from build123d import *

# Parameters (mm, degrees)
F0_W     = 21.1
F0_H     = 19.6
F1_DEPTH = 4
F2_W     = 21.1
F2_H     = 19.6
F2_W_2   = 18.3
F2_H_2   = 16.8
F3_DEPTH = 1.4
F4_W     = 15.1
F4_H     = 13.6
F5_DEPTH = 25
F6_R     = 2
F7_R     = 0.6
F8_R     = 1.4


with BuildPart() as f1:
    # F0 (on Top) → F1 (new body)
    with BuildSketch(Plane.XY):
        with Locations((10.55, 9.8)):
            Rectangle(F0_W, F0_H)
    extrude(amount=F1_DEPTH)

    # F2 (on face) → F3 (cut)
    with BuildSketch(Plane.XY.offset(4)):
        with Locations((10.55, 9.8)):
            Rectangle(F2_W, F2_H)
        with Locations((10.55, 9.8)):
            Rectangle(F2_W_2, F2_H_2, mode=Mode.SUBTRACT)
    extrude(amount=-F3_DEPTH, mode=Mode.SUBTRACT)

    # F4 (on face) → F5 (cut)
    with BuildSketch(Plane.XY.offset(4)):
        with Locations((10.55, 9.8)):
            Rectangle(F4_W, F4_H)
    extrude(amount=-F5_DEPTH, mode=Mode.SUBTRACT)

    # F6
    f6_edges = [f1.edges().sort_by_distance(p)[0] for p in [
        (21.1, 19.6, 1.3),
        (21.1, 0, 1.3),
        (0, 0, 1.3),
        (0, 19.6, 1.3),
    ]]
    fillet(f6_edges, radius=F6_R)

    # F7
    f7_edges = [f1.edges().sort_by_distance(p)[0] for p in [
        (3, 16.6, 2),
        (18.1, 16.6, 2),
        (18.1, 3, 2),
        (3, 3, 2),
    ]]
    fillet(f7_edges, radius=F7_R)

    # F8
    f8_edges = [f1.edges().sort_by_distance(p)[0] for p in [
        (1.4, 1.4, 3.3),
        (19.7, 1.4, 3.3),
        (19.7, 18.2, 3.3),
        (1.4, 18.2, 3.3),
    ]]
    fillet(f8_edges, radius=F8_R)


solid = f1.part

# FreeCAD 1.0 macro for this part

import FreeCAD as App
import Part
import Sketcher

V = App.Vector


def edges_at(feature, points):
    """Names of the edges that pass closest to the given points."""
    edges = feature.Shape.Edges
    near = lambda p: min(range(len(edges)), key=lambda i: edges[i].distToShape(Part.Vertex(*p))[0])
    return sorted({f"Edge{near(p) + 1}" for p in points})


def add_polygon(sketch, points):
    """Adds a closed chain of lines whose ends are joined by coincident constraints."""
    first, n = sketch.GeometryCount, len(points)
    for a, b in zip(points, points[1:] + points[:1]):
        sketch.addGeometry(Part.LineSegment(App.Vector(*a, 0), App.Vector(*b, 0)), False)
    for i in range(n):
        sketch.addConstraint(Sketcher.Constraint("Coincident", first + i, 2, first + (i + 1) % n, 1))

doc = App.newDocument("Part")
body = doc.addObject("PartDesign::Body", "Body")

# Sketch on XY plane
sketch1 = body.newObject("Sketcher::SketchObject", "Sketch")
sketch1.AttachmentSupport = (doc.getObject("XY_Plane"), [""])
sketch1.MapMode = "FlatFace"
add_polygon(sketch1, [(0, 20), (0, 0), (21, 0), (21, 20)])  # lines 0-3
sketch1.addConstraint([
    Sketcher.Constraint("Vertical", 0),
    Sketcher.Constraint("Horizontal", 1),
    Sketcher.Constraint("Vertical", 2),
    Sketcher.Constraint("Horizontal", 3),
    Sketcher.Constraint("Coincident", 0, 2, -1, 1),
    Sketcher.Constraint("DistanceX", 1, 1, 1, 2, 21.1),
    Sketcher.Constraint("DistanceY", 0, 2, 0, 1, 19.6),
])
pad1 = body.newObject("PartDesign::Pad", "Pad")
pad1.Profile = sketch1
pad1.Length = 4

# Sketch on XY plane
sketch2 = body.newObject("Sketcher::SketchObject", "Sketch001")
sketch2.AttachmentSupport = (doc.getObject("XY_Plane"), [""])
sketch2.MapMode = "FlatFace"
sketch2.AttachmentOffset = App.Placement(V(0, 0, 4), App.Rotation())
add_polygon(sketch2, [(0, 20), (0, 0), (21, 0), (21, 20)])  # lines 0-3
add_polygon(sketch2, [(20, 1), (1, 1), (1, 18), (20, 18)])  # lines 4-7
sketch2.addConstraint([
    Sketcher.Constraint("Vertical", 0),
    Sketcher.Constraint("Horizontal", 1),
    Sketcher.Constraint("Vertical", 2),
    Sketcher.Constraint("Horizontal", 3),
    Sketcher.Constraint("Horizontal", 4),
    Sketcher.Constraint("Vertical", 5),
    Sketcher.Constraint("Horizontal", 6),
    Sketcher.Constraint("Vertical", 7),
    Sketcher.Constraint("Coincident", 0, 2, -1, 1),
    Sketcher.Constraint("DistanceX", 1, 1, 1, 2, 21.1),
    Sketcher.Constraint("DistanceX", 4, 2, 4, 1, 18.3),
    Sketcher.Constraint("DistanceY", 0, 2, 0, 1, 19.6),
    Sketcher.Constraint("DistanceY", 5, 1, 5, 2, 16.8),
    Sketcher.Constraint("DistanceX", -1, 1, 4, 2, 1.4),
    Sketcher.Constraint("DistanceY", -1, 1, 4, 2, 1.4),
])
pocket1 = body.newObject("PartDesign::Pocket", "Pocket")
pocket1.Profile = sketch2
pocket1.Length = 1.4

# Sketch on XY plane
sketch3 = body.newObject("Sketcher::SketchObject", "Sketch002")
sketch3.AttachmentSupport = (doc.getObject("XY_Plane"), [""])
sketch3.MapMode = "FlatFace"
sketch3.AttachmentOffset = App.Placement(V(0, 0, 4), App.Rotation())
add_polygon(sketch3, [(3, 17), (3, 3), (18, 3), (18, 17)])  # lines 0-3
sketch3.addConstraint([
    Sketcher.Constraint("Vertical", 0),
    Sketcher.Constraint("Horizontal", 1),
    Sketcher.Constraint("Vertical", 2),
    Sketcher.Constraint("Horizontal", 3),
    Sketcher.Constraint("DistanceX", 1, 1, 1, 2, 15.1),
    Sketcher.Constraint("DistanceY", 0, 2, 0, 1, 13.6),
    Sketcher.Constraint("DistanceX", -1, 1, 0, 2, 3.0),
    Sketcher.Constraint("DistanceY", -1, 1, 0, 2, 3.0),
])
pocket2 = body.newObject("PartDesign::Pocket", "Pocket001")
pocket2.Profile = sketch3
pocket2.Length = 25
doc.recompute()

fillet = body.newObject("PartDesign::Fillet", "Fillet")
fillet.Base = (pocket2, edges_at(pocket2, [
    (21.1, 19.6, 1.3),
    (21.1, 0, 1.3),
    (0, 0, 1.3),
    (0, 19.6, 1.3),
]))
fillet.Radius = 2
doc.recompute()

fillet2 = body.newObject("PartDesign::Fillet", "Fillet001")
fillet2.Base = (fillet, edges_at(fillet, [
    (3, 16.6, 2),
    (18.1, 16.6, 2),
    (18.1, 3, 2),
    (3, 3, 2),
]))
fillet2.Radius = 0.6
doc.recompute()

fillet3 = body.newObject("PartDesign::Fillet", "Fillet002")
fillet3.Base = (fillet2, edges_at(fillet2, [
    (1.4, 1.4, 3.3),
    (19.7, 1.4, 3.3),
    (19.7, 18.2, 3.3),
    (1.4, 18.2, 3.3),
]))
fillet3.Radius = 1.4

doc.recompute()
